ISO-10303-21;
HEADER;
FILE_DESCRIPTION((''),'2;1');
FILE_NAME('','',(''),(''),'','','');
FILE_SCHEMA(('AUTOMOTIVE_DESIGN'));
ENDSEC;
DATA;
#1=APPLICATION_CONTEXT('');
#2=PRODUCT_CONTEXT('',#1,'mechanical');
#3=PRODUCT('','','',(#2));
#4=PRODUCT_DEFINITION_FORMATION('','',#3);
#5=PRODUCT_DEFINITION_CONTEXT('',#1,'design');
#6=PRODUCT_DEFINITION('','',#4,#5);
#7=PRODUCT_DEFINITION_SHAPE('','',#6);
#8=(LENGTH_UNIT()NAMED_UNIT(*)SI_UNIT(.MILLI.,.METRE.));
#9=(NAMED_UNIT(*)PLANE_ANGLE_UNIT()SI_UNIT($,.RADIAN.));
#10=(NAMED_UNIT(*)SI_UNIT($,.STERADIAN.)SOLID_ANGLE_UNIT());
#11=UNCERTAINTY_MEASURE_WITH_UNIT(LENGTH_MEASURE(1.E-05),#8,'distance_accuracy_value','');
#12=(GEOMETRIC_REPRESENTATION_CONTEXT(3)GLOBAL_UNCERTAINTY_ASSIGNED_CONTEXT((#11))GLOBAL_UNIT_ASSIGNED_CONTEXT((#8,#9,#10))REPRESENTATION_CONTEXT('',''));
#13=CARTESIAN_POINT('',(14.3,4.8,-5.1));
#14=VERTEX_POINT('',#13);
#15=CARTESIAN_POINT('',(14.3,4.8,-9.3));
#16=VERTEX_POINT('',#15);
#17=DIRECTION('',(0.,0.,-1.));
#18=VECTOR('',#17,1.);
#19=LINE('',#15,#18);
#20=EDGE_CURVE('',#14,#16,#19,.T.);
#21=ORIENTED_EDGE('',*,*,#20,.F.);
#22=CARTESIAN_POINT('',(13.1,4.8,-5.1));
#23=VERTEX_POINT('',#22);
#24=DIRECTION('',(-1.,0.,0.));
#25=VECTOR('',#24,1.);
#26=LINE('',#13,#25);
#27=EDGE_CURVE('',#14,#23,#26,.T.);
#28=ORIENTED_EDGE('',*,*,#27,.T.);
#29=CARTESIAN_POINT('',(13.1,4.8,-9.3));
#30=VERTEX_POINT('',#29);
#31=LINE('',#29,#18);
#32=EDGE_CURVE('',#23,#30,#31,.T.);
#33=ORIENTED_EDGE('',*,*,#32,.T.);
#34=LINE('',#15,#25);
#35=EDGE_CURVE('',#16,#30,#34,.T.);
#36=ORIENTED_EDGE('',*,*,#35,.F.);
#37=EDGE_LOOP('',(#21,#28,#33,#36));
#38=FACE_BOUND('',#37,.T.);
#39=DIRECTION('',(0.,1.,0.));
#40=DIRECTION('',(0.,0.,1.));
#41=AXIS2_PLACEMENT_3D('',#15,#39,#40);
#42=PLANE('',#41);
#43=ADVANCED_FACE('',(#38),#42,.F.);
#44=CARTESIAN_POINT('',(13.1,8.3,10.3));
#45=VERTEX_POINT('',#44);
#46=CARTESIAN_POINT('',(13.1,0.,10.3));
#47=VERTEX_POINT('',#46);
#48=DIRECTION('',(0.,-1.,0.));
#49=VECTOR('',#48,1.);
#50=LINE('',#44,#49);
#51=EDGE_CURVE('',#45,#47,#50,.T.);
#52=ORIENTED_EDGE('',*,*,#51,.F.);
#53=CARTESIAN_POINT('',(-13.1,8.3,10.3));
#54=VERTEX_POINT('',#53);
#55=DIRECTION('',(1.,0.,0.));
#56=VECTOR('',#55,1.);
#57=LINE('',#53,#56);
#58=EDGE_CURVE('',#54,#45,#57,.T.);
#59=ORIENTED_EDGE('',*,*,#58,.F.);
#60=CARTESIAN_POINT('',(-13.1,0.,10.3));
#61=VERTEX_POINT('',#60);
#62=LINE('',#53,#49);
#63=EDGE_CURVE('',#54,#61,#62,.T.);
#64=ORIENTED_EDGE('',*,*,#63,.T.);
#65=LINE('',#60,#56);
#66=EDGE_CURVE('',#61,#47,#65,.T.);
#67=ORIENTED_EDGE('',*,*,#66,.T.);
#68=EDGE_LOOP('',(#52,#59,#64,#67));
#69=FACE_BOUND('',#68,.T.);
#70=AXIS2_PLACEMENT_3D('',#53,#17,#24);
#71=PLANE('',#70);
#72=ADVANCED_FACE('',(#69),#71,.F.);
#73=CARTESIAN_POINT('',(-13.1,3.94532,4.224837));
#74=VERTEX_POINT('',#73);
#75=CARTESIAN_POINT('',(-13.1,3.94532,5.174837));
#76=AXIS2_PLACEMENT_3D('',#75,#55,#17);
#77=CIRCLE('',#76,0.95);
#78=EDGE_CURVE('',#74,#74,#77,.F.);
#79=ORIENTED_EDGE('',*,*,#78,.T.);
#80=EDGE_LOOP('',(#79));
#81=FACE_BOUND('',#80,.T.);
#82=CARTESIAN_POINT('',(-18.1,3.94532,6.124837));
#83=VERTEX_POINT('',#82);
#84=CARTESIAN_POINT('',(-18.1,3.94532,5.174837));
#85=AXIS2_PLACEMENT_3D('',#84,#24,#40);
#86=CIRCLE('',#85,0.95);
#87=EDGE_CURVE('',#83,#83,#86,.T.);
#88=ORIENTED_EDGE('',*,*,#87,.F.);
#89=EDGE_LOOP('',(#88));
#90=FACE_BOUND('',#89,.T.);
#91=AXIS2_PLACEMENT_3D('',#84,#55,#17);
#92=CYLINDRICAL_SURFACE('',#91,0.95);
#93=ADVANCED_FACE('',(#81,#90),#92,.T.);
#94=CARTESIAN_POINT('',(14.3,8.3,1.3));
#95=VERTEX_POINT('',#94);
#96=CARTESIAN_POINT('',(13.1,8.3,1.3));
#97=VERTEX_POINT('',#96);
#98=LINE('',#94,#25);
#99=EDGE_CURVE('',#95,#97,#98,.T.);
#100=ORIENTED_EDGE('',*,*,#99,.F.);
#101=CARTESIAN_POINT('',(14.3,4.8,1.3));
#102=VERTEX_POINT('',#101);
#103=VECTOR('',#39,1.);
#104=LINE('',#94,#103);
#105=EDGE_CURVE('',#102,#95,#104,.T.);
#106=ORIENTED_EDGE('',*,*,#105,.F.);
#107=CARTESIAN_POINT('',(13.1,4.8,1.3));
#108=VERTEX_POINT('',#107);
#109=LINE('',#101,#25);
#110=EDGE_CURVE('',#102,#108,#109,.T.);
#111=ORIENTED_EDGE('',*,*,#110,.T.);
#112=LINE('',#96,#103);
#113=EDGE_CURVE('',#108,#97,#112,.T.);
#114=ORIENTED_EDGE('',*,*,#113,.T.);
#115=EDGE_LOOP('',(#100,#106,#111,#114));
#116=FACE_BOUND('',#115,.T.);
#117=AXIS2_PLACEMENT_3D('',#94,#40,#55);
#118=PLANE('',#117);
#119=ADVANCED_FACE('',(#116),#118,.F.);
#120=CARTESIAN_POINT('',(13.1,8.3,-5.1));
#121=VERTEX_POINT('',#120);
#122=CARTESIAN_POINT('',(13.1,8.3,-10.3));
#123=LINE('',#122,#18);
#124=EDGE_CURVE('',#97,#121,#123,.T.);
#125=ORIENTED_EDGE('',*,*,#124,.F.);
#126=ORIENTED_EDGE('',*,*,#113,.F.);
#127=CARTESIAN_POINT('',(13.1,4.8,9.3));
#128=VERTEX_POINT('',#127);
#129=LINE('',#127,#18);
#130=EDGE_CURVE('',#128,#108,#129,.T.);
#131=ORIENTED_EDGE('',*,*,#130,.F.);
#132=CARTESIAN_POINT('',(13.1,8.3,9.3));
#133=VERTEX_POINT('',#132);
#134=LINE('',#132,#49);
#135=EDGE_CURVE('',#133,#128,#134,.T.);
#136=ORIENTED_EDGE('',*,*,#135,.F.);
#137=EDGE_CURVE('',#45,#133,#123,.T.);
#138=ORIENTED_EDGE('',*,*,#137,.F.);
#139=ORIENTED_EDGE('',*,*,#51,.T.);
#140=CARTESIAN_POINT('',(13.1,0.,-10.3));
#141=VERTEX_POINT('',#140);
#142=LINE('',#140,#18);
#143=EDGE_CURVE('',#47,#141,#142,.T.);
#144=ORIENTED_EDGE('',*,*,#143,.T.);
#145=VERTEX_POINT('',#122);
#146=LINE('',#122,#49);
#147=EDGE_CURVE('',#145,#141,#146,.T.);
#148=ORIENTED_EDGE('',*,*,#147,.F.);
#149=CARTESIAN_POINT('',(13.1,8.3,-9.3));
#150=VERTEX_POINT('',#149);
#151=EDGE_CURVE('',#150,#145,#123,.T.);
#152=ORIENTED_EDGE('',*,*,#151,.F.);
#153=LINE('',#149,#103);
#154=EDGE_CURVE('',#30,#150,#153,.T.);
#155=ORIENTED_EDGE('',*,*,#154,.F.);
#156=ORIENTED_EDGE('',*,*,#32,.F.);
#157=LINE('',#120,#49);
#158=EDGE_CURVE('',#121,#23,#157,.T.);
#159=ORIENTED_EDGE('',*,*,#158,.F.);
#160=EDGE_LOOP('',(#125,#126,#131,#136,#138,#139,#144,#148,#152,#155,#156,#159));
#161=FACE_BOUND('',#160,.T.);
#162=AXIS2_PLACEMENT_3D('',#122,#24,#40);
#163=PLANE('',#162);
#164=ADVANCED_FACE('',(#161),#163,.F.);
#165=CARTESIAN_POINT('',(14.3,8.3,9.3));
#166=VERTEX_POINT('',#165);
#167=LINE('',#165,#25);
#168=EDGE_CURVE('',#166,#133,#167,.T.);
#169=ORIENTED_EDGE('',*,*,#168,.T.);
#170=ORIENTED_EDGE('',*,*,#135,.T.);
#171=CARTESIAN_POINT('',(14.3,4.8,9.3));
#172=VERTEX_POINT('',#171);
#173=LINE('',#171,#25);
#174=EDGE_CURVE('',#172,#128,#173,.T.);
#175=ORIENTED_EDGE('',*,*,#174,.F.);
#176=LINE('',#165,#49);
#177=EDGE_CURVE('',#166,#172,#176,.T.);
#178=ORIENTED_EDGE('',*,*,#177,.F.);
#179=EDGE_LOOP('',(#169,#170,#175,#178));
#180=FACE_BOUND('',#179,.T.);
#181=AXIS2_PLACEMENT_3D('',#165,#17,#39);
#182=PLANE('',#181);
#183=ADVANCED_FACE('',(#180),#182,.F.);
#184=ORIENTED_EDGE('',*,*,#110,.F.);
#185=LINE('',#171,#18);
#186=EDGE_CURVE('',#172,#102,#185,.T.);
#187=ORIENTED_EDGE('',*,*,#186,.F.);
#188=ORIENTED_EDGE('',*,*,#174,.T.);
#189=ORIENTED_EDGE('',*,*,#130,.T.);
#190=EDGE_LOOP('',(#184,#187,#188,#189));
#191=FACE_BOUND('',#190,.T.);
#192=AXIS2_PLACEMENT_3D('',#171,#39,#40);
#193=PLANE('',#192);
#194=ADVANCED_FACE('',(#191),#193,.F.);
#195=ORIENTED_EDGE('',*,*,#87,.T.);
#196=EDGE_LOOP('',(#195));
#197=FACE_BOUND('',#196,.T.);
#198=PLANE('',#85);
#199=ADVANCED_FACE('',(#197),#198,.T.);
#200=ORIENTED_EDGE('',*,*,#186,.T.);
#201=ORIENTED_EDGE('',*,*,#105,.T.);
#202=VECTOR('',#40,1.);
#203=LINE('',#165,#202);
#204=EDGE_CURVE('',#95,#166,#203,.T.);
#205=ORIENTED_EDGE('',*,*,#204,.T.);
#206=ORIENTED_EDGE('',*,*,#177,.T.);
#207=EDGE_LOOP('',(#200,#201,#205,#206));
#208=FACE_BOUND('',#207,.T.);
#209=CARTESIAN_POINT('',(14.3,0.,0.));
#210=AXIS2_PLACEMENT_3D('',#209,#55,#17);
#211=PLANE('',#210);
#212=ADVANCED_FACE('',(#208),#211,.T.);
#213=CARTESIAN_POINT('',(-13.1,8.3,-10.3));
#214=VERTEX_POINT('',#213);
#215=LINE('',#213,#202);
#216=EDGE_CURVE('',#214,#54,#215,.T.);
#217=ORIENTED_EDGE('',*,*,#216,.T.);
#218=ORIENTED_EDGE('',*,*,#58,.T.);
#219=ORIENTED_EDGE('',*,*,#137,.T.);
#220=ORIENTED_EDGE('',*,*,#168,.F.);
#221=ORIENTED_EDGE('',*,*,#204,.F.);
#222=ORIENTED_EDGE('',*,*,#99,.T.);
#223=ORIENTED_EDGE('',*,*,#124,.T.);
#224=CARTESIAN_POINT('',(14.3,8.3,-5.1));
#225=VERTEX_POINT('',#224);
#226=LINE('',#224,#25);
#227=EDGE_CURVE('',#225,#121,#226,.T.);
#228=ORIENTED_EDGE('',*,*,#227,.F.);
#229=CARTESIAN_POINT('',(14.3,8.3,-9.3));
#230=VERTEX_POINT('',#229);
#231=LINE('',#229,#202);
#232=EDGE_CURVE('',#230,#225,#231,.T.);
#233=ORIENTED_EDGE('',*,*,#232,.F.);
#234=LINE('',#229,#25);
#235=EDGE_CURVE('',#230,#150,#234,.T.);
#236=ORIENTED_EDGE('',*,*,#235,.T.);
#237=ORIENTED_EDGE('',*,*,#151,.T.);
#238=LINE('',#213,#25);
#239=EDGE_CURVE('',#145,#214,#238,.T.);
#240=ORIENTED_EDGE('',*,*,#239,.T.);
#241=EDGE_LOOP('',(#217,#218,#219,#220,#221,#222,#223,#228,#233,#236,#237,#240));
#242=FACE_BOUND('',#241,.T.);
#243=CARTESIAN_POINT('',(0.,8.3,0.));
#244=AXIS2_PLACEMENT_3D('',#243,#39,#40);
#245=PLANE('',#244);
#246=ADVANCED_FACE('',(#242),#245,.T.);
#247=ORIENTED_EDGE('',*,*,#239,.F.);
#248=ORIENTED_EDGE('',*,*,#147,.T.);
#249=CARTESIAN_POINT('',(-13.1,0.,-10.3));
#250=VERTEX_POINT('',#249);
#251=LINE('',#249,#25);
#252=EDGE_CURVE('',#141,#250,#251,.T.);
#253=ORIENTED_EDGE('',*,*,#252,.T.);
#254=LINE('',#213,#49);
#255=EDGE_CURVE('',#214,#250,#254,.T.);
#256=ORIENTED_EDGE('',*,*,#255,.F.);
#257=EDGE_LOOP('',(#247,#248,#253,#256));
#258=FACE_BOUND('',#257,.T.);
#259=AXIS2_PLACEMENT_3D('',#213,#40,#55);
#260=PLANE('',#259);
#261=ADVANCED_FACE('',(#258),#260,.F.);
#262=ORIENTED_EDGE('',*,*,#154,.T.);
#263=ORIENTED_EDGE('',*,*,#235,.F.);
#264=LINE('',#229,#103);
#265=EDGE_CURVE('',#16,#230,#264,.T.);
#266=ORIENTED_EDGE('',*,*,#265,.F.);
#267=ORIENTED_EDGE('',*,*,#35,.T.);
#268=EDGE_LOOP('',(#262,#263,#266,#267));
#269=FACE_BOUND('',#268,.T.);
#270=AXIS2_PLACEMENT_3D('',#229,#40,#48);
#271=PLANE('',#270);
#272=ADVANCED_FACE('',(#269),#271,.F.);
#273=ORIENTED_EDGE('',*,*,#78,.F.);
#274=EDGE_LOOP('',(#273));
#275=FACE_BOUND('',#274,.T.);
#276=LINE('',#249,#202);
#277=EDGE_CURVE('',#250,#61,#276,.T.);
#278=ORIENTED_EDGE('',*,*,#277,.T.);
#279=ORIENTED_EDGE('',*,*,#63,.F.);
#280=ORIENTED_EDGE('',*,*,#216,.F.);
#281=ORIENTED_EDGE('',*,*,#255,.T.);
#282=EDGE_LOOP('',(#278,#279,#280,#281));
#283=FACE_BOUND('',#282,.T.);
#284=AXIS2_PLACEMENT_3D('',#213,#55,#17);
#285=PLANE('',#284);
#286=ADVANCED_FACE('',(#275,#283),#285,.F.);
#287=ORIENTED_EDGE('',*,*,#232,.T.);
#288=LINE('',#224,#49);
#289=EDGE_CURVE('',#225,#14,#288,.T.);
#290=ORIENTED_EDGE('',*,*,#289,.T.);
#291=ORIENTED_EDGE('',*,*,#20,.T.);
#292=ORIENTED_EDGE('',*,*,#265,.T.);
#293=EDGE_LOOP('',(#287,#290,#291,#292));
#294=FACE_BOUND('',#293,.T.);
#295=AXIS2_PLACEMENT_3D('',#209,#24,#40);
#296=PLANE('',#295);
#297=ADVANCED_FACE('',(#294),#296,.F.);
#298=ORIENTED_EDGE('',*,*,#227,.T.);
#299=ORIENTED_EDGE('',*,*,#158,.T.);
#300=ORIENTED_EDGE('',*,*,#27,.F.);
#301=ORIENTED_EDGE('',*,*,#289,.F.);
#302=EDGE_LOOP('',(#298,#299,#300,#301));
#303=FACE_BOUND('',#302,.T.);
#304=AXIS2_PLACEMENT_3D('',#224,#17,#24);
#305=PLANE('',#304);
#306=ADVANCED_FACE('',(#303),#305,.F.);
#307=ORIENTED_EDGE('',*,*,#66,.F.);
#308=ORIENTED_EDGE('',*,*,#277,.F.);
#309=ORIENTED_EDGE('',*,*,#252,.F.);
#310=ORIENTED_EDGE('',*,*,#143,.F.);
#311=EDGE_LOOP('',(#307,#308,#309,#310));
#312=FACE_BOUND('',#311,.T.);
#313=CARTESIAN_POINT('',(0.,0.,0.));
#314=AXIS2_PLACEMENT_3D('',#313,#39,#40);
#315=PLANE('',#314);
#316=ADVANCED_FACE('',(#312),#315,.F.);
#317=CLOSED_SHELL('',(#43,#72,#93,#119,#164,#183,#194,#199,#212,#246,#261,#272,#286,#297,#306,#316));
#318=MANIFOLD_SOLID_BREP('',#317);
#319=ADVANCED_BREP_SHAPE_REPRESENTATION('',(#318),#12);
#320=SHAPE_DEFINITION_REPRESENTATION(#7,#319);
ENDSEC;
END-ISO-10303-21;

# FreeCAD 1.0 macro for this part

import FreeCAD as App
import Part
import Sketcher


def add_polygon(sketch, points):
    """Adds a closed chain of lines whose ends are joined by coincident constraints."""
    first, n = sketch.GeometryCount, len(points)
    for a, b in zip(points, points[1:] + points[:1]):
        sketch.addGeometry(Part.LineSegment(App.Vector(*a, 0), App.Vector(*b, 0)), False)
    for i in range(n):
        sketch.addConstraint(Sketcher.Constraint("Coincident", first + i, 2, first + (i + 1) % n, 1))

doc = App.newDocument("Part")
body = doc.addObject("PartDesign::Body", "Body")

sketch1 = body.newObject("Sketcher::SketchObject", "Sketch")
sketch1.AttachmentSupport = (doc.getObject("XZ_Plane"), [""])
sketch1.MapMode = "FlatFace"
add_polygon(sketch1, [(-13, -10), (-13, 10), (13, 10), (13, -10)])
sketch1.addConstraint([
    Sketcher.Constraint("Vertical", 0),
    Sketcher.Constraint("Horizontal", 1),
    Sketcher.Constraint("Vertical", 2),
    Sketcher.Constraint("Horizontal", 3),
    Sketcher.Constraint("Symmetric", 0, 2, 2, 2, -1, 1),
    Sketcher.Constraint("DistanceX", 1, 1, 1, 2, 26.2),
    Sketcher.Constraint("DistanceY", 0, 1, 0, 2, 20.6),
])
pad1 = body.newObject("PartDesign::Pad", "Pad")
pad1.Profile = sketch1
pad1.Length = 8.3
pad1.Reversed = True

sketch2 = body.newObject("Sketcher::SketchObject", "Sketch001")
sketch2.AttachmentSupport = (doc.getObject("YZ_Plane"), [""])
sketch2.MapMode = "FlatFace"
sketch2.AttachmentOffset = App.Placement(App.Vector(0, 0, 13.1), App.Rotation())
add_polygon(sketch2, [(8.3, 9.3), (4.8, 9.3), (4.8, 1.3), (8.3, 1.3)])
add_polygon(sketch2, [(8.3, -5.1), (4.8, -5.1), (4.8, -9.3), (8.3, -9.3)])
sketch2.addConstraint([
    Sketcher.Constraint("Horizontal", 0),
    Sketcher.Constraint("Vertical", 1),
    Sketcher.Constraint("Horizontal", 2),
    Sketcher.Constraint("Vertical", 3),
    Sketcher.Constraint("Horizontal", 4),
    Sketcher.Constraint("Vertical", 5),
    Sketcher.Constraint("Horizontal", 6),
    Sketcher.Constraint("Vertical", 7),
    Sketcher.Constraint("Symmetric", 0, 2, 5, 2, -1),
    Sketcher.Constraint("Vertical", 3, 2, 6, 2),
    Sketcher.Constraint("DistanceY", 1, 2, 1, 1, 8.0),
    Sketcher.Constraint("DistanceX", 0, 2, 0, 1, 3.5),
    Sketcher.Constraint("DistanceY", 5, 2, 5, 1, 4.2),
    Sketcher.Constraint("DistanceX", -1, 1, 0, 2, 4.8),
    Sketcher.Constraint("DistanceY", -1, 1, 0, 2, 9.3),
])
pad2 = body.newObject("PartDesign::Pad", "Pad001")
pad2.Profile = sketch2
pad2.Length = 1.2

sketch3 = body.newObject("Sketcher::SketchObject", "Sketch002")
sketch3.AttachmentSupport = (doc.getObject("YZ_Plane"), [""])
sketch3.MapMode = "FlatFace"
sketch3.AttachmentOffset = App.Placement(App.Vector(0, 0, -13.1), App.Rotation())
sketch3.addGeometry(Part.Circle(App.Vector(3.9, 5.2, 0), App.Vector(0, 0, 1), 0.9), False)
sketch3.addConstraint([
    Sketcher.Constraint("Diameter", 0, 1.9),
    Sketcher.Constraint("DistanceX", -1, 1, 0, 3, 3.94532),
    Sketcher.Constraint("DistanceY", -1, 1, 0, 3, 5.174837),
])
pad3 = body.newObject("PartDesign::Pad", "Pad002")
pad3.Profile = sketch3
pad3.Length = 5
pad3.Reversed = True

doc.recompute()
